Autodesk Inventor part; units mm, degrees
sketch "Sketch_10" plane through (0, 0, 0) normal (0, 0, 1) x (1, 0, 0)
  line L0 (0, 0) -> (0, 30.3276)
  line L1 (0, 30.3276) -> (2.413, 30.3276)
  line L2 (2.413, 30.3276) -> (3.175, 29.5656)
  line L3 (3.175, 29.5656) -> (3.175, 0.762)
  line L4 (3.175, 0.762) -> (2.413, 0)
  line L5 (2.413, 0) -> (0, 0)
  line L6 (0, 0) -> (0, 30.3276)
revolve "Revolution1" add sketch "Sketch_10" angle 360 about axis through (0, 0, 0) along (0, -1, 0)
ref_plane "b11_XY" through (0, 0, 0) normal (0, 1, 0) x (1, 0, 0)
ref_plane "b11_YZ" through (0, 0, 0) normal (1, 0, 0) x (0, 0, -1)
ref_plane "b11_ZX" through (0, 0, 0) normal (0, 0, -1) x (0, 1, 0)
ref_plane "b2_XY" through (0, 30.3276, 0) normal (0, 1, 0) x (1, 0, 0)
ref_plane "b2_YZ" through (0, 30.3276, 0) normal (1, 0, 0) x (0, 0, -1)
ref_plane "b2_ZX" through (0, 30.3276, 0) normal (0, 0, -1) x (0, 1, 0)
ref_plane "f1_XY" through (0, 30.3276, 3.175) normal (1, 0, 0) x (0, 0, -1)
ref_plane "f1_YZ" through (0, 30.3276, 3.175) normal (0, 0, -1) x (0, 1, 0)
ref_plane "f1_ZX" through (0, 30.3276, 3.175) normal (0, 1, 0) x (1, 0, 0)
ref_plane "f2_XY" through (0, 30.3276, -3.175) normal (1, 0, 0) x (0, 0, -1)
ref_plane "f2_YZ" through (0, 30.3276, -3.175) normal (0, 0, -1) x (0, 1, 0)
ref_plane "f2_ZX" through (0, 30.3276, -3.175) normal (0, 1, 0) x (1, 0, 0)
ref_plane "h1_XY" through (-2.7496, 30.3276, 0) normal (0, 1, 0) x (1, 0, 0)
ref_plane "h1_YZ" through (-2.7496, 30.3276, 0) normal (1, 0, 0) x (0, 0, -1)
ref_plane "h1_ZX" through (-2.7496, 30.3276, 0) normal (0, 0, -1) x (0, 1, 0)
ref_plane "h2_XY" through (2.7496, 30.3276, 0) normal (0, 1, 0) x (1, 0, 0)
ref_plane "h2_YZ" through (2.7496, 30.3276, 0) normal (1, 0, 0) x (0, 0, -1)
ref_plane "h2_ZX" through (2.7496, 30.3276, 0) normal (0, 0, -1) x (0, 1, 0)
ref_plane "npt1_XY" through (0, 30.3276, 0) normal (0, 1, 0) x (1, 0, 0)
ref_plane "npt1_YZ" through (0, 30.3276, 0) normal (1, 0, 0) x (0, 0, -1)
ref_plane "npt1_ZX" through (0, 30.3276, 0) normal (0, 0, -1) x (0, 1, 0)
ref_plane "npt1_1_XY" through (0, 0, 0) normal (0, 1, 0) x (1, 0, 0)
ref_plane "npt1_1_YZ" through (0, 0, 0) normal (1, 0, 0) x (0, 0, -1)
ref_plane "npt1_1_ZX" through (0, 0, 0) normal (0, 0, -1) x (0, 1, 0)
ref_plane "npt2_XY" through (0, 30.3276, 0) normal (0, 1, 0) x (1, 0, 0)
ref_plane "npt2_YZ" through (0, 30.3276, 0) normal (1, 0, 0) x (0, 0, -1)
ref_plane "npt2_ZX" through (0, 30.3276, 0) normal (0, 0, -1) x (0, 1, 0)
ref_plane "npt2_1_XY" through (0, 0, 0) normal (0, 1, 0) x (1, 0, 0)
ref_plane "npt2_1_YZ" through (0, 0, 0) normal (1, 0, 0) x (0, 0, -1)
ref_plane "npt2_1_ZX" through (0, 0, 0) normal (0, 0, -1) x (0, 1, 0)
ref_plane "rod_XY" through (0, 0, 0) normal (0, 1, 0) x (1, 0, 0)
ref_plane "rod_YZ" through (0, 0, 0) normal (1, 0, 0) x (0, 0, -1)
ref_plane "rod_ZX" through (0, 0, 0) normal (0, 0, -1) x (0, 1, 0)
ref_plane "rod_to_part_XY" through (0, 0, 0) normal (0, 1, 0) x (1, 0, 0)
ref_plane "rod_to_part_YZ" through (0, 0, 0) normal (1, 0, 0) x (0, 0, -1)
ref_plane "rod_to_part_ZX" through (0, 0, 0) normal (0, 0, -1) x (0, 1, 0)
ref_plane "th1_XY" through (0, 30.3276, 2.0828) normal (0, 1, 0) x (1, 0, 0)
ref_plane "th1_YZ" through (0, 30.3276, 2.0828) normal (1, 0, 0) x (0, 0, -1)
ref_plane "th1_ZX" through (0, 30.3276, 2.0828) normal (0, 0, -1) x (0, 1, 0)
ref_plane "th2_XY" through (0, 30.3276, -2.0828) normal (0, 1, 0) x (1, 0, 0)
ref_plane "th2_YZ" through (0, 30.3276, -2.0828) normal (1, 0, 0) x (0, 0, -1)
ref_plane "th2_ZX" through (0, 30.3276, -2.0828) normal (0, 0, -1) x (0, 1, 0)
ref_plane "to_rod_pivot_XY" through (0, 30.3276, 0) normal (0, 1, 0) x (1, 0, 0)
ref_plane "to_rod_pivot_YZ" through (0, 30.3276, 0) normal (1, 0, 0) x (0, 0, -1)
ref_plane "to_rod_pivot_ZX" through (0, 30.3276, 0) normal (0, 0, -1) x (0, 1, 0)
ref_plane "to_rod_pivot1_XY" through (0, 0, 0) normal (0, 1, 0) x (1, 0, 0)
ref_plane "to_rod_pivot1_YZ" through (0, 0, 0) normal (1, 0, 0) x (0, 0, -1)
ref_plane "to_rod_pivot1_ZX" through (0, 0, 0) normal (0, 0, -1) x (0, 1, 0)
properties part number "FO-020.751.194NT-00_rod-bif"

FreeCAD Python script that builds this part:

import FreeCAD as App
import Part
import Sketcher

V = App.Vector
Q = App.Units.Quantity


def add_polygon(sketch, points):
    """Adds a closed chain of lines whose ends are joined by coincident constraints."""
    first, n = sketch.GeometryCount, len(points)
    for a, b in zip(points, points[1:] + points[:1]):
        sketch.addGeometry(Part.LineSegment(App.Vector(*a, 0), App.Vector(*b, 0)), False)
    for i in range(n):
        sketch.addConstraint(Sketcher.Constraint("Coincident", first + i, 2, first + (i + 1) % n, 1))

doc = App.newDocument("Part")
body = doc.addObject("PartDesign::Body", "Body")

# Sketch on XY plane
sketch1 = body.newObject("Sketcher::SketchObject", "Sketch")
sketch1.AttachmentSupport = (doc.getObject("XY_Plane"), [""])
sketch1.MapMode = "FlatFace"
add_polygon(sketch1, [(0, 30.3), (0, 0), (2.4, 0), (3.2, 0.8), (3.2, 29.6), (2.4, 30.3)])  # lines 0-5
sketch1.addConstraint([
    Sketcher.Constraint("Vertical", 0),
    Sketcher.Constraint("Horizontal", 1),
    Sketcher.Constraint("Vertical", 3),
    Sketcher.Constraint("Horizontal", 5),
    Sketcher.Constraint("Coincident", 0, 2, -1, 1),
    Sketcher.Constraint("Perpendicular", 2, 4),
    Sketcher.Constraint("Vertical", 1, 2, 4, 2),
    Sketcher.Constraint("Equal", 2, 4),
    Sketcher.Constraint("DistanceX", 1, 1, 1, 2, Q("0.095 in")),
    Sketcher.Constraint("DistanceY", 0, 2, 0, 1, Q("1.194 in")),
    Sketcher.Constraint("DistanceY", 3, 1, 3, 2, Q("1.134 in")),
])
revolution = body.newObject("PartDesign::Revolution", "Revolution")
revolution.Profile = sketch1
revolution.ReferenceAxis = (sketch1, ["V_Axis"])
revolution.Angle = 360

doc.recompute()
